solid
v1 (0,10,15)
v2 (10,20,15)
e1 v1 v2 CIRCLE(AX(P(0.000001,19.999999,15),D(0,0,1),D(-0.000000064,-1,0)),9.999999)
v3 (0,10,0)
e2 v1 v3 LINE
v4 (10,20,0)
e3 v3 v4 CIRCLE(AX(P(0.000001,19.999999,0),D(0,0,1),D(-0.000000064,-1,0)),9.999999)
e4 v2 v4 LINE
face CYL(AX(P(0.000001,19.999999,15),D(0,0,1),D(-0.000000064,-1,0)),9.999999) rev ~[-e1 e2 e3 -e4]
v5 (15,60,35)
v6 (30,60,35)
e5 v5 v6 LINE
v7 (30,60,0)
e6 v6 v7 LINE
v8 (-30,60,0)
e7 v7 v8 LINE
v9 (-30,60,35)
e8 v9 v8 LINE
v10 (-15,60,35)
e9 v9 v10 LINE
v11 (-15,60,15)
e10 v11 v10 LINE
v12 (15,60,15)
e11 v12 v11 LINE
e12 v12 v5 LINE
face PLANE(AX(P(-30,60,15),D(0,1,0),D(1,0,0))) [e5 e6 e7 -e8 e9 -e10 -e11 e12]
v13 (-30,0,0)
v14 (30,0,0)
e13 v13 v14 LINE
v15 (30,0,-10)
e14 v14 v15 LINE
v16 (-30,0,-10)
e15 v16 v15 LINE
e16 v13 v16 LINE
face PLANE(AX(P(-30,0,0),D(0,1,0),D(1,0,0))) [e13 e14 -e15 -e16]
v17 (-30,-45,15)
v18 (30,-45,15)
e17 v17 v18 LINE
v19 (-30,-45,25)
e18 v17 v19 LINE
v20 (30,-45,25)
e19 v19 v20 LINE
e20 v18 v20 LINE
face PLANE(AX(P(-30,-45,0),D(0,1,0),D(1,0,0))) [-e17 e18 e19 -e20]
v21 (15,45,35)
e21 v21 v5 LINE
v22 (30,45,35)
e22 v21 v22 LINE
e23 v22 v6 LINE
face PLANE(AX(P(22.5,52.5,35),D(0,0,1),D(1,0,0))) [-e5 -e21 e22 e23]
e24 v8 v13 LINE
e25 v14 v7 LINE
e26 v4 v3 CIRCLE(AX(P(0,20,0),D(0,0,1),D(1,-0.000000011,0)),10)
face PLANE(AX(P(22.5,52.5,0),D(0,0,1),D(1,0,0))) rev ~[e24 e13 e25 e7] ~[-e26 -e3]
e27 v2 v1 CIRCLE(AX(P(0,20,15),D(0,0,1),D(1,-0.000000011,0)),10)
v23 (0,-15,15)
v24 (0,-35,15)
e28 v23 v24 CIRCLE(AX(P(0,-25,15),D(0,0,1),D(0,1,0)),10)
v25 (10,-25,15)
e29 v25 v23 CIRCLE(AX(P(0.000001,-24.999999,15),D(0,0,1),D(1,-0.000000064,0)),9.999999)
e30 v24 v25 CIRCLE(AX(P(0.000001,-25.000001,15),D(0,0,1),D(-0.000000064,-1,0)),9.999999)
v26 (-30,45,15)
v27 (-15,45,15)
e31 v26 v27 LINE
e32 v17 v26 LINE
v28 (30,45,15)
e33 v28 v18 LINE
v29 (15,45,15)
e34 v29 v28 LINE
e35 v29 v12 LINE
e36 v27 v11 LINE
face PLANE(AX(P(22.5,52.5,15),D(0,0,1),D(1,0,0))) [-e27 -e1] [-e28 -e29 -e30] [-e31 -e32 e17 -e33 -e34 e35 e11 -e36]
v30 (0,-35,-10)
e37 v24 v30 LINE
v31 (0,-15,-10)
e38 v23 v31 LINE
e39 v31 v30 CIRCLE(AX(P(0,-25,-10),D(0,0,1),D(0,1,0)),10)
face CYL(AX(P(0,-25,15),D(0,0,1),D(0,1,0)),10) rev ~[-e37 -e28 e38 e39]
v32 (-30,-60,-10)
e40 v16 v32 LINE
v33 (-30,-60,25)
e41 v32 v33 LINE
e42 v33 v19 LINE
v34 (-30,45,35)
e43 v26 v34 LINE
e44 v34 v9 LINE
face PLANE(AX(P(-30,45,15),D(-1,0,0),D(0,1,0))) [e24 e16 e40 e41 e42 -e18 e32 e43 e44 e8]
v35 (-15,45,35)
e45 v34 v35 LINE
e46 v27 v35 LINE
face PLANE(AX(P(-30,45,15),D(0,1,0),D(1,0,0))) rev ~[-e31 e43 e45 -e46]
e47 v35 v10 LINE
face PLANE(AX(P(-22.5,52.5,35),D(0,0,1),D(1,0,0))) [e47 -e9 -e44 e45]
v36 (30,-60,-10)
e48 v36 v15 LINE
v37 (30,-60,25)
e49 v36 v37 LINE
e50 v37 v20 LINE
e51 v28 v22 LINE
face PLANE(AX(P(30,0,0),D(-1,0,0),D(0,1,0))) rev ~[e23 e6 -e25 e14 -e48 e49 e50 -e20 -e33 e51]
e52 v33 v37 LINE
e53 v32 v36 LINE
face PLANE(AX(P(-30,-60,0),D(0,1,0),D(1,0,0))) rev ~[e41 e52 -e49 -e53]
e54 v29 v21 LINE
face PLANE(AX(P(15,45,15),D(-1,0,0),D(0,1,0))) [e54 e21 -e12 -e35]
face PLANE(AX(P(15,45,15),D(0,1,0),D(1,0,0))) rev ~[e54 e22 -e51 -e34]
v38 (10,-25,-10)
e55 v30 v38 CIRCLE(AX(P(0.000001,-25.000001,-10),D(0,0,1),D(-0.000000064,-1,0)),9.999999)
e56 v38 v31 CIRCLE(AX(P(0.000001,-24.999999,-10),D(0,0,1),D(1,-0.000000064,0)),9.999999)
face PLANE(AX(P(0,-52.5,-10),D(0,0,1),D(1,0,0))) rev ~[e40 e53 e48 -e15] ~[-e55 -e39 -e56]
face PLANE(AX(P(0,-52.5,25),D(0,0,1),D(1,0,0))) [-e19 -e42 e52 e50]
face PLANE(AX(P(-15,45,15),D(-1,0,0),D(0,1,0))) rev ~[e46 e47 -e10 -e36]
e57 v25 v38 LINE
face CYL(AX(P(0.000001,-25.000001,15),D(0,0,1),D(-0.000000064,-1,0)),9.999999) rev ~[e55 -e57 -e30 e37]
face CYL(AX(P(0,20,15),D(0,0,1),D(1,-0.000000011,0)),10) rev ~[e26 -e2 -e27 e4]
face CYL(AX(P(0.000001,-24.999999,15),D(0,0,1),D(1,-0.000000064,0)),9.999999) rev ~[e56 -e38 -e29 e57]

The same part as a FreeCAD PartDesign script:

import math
import FreeCAD as App
import Part
import Sketcher

V = App.Vector
Q = App.Units.Quantity


def add_polygon(sketch, points):
    """Adds a closed chain of lines whose ends are joined by coincident constraints."""
    first, n = sketch.GeometryCount, len(points)
    for a, b in zip(points, points[1:] + points[:1]):
        sketch.addGeometry(Part.LineSegment(App.Vector(*a, 0), App.Vector(*b, 0)), False)
    for i in range(n):
        sketch.addConstraint(Sketcher.Constraint("Coincident", first + i, 2, first + (i + 1) % n, 1))

doc = App.newDocument("Part")
body = doc.addObject("PartDesign::Body", "Body")

sketch1 = doc.addObject("Sketcher::SketchObject", "Sketch")
body.addObject(sketch1)
sketch1.AttachmentSupport = (doc.XY_Plane, [""])
sketch1.MapMode = "FlatFace"
add_polygon(sketch1, [(-30, -60), (30, -60), (30, 0), (-30, 0)])
sketch1.addConstraint([
    Sketcher.Constraint("Horizontal", 0),
    Sketcher.Constraint("Vertical", 1),
    Sketcher.Constraint("Horizontal", 2),
    Sketcher.Constraint("Vertical", 3),
    Sketcher.Constraint("Symmetric", 1, 2, 2, 2, -1, 1),
    Sketcher.Constraint("Equal", 2, 1),
    Sketcher.Constraint("DistanceX", 0, 1, 0, 2, Q("60 mm")),
])
pad1 = doc.addObject("PartDesign::Pad", "Pad")
body.addObject(pad1)
pad1.Profile = sketch1
pad1.Length = 10
pad1.Reversed = True

sketch2 = doc.addObject("Sketcher::SketchObject", "Sketch001")
body.addObject(sketch2)
sketch2.AttachmentSupport = (doc.XY_Plane, [""])
sketch2.MapMode = "FlatFace"
add_polygon(sketch2, [(-30, -45), (-30, -60), (30, -60), (30, -45)])
sketch2.addConstraint([
    Sketcher.Constraint("Vertical", 0),
    Sketcher.Constraint("Horizontal", 1),
    Sketcher.Constraint("Vertical", 2),
    Sketcher.Constraint("Horizontal", 3),
    Sketcher.Constraint("DistanceX", 1, 1, 1, 2, Q("60 mm")),
    Sketcher.Constraint("DistanceY", 0, 2, 0, 1, Q("15 mm")),
    Sketcher.Constraint("DistanceX", 0, 2, -1, 1, Q("30 mm")),
    Sketcher.Constraint("DistanceY", 0, 2, -1, 1, Q("60 mm")),
])
pad2 = doc.addObject("PartDesign::Pad", "Pad001")
body.addObject(pad2)
pad2.Profile = sketch2
pad2.Length = 25

sketch3 = doc.addObject("Sketcher::SketchObject", "Sketch002")
body.addObject(sketch3)
sketch3.AttachmentSupport = (doc.XY_Plane, [""])
sketch3.MapMode = "FlatFace"
add_polygon(sketch3, [(-30, 0), (-30, -45), (30, -45), (30, 0)])
sketch3.addConstraint([
    Sketcher.Constraint("Vertical", 0),
    Sketcher.Constraint("Horizontal", 1),
    Sketcher.Constraint("Vertical", 2),
    Sketcher.Constraint("Horizontal", 3),
    Sketcher.Constraint("Symmetric", 2, 2, 3, 2, -1, 1),
    Sketcher.Constraint("DistanceX", 1, 1, 1, 2, Q("60 mm")),
    Sketcher.Constraint("DistanceY", 0, 2, 0, 1, Q("45 mm")),
])
pad3 = doc.addObject("PartDesign::Pad", "Pad002")
body.addObject(pad3)
pad3.Profile = sketch3
pad3.Length = 15

sketch4 = doc.addObject("Sketcher::SketchObject", "Sketch003")
body.addObject(sketch4)
sketch4.AttachmentSupport = (doc.XY_Plane, [""])
sketch4.MapMode = "FlatFace"
add_polygon(sketch4, [(30, 60), (-30, 60), (-30, 0), (30, 0)])
sketch4.addConstraint([
    Sketcher.Constraint("Horizontal", 0),
    Sketcher.Constraint("Vertical", 1),
    Sketcher.Constraint("Horizontal", 2),
    Sketcher.Constraint("Vertical", 3),
    Sketcher.Constraint("Symmetric", 1, 2, 2, 2, -1, 1),
    Sketcher.Constraint("Equal", 2, 1),
    Sketcher.Constraint("DistanceX", 0, 2, 0, 1, Q("60 mm")),
])
pad4 = doc.addObject("PartDesign::Pad", "Pad003")
body.addObject(pad4)
pad4.Profile = sketch4
pad4.Length = 15

sketch5 = doc.addObject("Sketcher::SketchObject", "Sketch004")
body.addObject(sketch5)
sketch5.AttachmentSupport = (doc.XY_Plane, [""])
sketch5.MapMode = "FlatFace"
sketch5.AttachmentOffset = App.Placement(V(0, 0, 15), App.Rotation())
add_polygon(sketch5, [(-30, 60), (-30, 45), (-15, 45), (-15, 60)])
add_polygon(sketch5, [(15, 60), (15, 45), (30, 45), (30, 60)])
sketch5.addConstraint([
    Sketcher.Constraint("Vertical", 0),
    Sketcher.Constraint("Horizontal", 1),
    Sketcher.Constraint("Vertical", 2),
    Sketcher.Constraint("Horizontal", 3),
    Sketcher.Constraint("Vertical", 4),
    Sketcher.Constraint("Horizontal", 5),
    Sketcher.Constraint("Vertical", 6),
    Sketcher.Constraint("Horizontal", 7),
    Sketcher.Constraint("Symmetric", 1, 2, 4, 2, -2),
    Sketcher.Constraint("Symmetric", 3, 2, 6, 2, -2),
    Sketcher.Constraint("Equal", 7, 0),
    Sketcher.Constraint("DistanceX", 1, 1, 1, 2, Q("15 mm")),
    Sketcher.Constraint("DistanceX", 0, 2, -1, 1, Q("30 mm")),
    Sketcher.Constraint("DistanceY", -1, 1, 0, 2, Q("45 mm")),
])
pad5 = doc.addObject("PartDesign::Pad", "Pad004")
body.addObject(pad5)
pad5.Profile = sketch5
pad5.Length = 20

sketch6 = doc.addObject("Sketcher::SketchObject", "Sketch005")
body.addObject(sketch6)
sketch6.AttachmentSupport = (doc.XY_Plane, [""])
sketch6.MapMode = "FlatFace"
sketch6.AttachmentOffset = App.Placement(V(0, 0, 15), App.Rotation())
sketch6.addGeometry([
    Part.ArcOfCircle(Part.Circle(V(0, 20, 0), V(0, 0, 1), 10), math.radians(0), math.radians(270)),
    Part.ArcOfCircle(Part.Circle(V(0, 20, 0), V(0, 0, 1), 10), math.radians(-90), math.radians(0)),
    Part.ArcOfCircle(Part.Circle(V(0, -25, 0), V(0, 0, 1), 10), math.radians(-90), math.radians(0)),
    Part.ArcOfCircle(Part.Circle(V(0, -25, 0), V(0, 0, 1), 10), math.radians(0), math.radians(90)),
    Part.ArcOfCircle(Part.Circle(V(0, -25, 0), V(0, 0, 1), 10), math.radians(90), math.radians(270)),
], False)
sketch6.addConstraint([
    Sketcher.Constraint("Tangent", 0, 1, 1, 2),
    Sketcher.Constraint("Coincident", 1, 1, 0, 2),
    Sketcher.Constraint("Tangent", 2, 2, 3, 1),
    Sketcher.Constraint("Tangent", 3, 2, 4, 1),
    Sketcher.Constraint("Tangent", 4, 2, 2, 1),
    Sketcher.Constraint("Equal", 1, 2),
    Sketcher.Constraint("PointOnObject", 0, 3, -2),
    Sketcher.Constraint("PointOnObject", 2, 3, -2),
    Sketcher.Constraint("PointOnObject", 1, 1, -2),
    Sketcher.Constraint("PointOnObject", 3, 2, -2),
    Sketcher.Constraint("PointOnObject", 4, 2, -2),
    Sketcher.Constraint("Horizontal", 1, 3, 0, 1),
    Sketcher.Constraint("Horizontal", 4, 3, 2, 2),
    Sketcher.Constraint("Radius", 0, Q("10 mm")),
    Sketcher.Constraint("DistanceY", -1, 1, 0, 3, Q("20 mm")),
    Sketcher.Constraint("DistanceY", 2, 3, -1, 1, Q("25.000001 mm")),
])
pocket1 = doc.addObject("PartDesign::Pocket", "Pocket")
body.addObject(pocket1)
pocket1.Profile = sketch6
pocket1.Length = 40

doc.recompute()
